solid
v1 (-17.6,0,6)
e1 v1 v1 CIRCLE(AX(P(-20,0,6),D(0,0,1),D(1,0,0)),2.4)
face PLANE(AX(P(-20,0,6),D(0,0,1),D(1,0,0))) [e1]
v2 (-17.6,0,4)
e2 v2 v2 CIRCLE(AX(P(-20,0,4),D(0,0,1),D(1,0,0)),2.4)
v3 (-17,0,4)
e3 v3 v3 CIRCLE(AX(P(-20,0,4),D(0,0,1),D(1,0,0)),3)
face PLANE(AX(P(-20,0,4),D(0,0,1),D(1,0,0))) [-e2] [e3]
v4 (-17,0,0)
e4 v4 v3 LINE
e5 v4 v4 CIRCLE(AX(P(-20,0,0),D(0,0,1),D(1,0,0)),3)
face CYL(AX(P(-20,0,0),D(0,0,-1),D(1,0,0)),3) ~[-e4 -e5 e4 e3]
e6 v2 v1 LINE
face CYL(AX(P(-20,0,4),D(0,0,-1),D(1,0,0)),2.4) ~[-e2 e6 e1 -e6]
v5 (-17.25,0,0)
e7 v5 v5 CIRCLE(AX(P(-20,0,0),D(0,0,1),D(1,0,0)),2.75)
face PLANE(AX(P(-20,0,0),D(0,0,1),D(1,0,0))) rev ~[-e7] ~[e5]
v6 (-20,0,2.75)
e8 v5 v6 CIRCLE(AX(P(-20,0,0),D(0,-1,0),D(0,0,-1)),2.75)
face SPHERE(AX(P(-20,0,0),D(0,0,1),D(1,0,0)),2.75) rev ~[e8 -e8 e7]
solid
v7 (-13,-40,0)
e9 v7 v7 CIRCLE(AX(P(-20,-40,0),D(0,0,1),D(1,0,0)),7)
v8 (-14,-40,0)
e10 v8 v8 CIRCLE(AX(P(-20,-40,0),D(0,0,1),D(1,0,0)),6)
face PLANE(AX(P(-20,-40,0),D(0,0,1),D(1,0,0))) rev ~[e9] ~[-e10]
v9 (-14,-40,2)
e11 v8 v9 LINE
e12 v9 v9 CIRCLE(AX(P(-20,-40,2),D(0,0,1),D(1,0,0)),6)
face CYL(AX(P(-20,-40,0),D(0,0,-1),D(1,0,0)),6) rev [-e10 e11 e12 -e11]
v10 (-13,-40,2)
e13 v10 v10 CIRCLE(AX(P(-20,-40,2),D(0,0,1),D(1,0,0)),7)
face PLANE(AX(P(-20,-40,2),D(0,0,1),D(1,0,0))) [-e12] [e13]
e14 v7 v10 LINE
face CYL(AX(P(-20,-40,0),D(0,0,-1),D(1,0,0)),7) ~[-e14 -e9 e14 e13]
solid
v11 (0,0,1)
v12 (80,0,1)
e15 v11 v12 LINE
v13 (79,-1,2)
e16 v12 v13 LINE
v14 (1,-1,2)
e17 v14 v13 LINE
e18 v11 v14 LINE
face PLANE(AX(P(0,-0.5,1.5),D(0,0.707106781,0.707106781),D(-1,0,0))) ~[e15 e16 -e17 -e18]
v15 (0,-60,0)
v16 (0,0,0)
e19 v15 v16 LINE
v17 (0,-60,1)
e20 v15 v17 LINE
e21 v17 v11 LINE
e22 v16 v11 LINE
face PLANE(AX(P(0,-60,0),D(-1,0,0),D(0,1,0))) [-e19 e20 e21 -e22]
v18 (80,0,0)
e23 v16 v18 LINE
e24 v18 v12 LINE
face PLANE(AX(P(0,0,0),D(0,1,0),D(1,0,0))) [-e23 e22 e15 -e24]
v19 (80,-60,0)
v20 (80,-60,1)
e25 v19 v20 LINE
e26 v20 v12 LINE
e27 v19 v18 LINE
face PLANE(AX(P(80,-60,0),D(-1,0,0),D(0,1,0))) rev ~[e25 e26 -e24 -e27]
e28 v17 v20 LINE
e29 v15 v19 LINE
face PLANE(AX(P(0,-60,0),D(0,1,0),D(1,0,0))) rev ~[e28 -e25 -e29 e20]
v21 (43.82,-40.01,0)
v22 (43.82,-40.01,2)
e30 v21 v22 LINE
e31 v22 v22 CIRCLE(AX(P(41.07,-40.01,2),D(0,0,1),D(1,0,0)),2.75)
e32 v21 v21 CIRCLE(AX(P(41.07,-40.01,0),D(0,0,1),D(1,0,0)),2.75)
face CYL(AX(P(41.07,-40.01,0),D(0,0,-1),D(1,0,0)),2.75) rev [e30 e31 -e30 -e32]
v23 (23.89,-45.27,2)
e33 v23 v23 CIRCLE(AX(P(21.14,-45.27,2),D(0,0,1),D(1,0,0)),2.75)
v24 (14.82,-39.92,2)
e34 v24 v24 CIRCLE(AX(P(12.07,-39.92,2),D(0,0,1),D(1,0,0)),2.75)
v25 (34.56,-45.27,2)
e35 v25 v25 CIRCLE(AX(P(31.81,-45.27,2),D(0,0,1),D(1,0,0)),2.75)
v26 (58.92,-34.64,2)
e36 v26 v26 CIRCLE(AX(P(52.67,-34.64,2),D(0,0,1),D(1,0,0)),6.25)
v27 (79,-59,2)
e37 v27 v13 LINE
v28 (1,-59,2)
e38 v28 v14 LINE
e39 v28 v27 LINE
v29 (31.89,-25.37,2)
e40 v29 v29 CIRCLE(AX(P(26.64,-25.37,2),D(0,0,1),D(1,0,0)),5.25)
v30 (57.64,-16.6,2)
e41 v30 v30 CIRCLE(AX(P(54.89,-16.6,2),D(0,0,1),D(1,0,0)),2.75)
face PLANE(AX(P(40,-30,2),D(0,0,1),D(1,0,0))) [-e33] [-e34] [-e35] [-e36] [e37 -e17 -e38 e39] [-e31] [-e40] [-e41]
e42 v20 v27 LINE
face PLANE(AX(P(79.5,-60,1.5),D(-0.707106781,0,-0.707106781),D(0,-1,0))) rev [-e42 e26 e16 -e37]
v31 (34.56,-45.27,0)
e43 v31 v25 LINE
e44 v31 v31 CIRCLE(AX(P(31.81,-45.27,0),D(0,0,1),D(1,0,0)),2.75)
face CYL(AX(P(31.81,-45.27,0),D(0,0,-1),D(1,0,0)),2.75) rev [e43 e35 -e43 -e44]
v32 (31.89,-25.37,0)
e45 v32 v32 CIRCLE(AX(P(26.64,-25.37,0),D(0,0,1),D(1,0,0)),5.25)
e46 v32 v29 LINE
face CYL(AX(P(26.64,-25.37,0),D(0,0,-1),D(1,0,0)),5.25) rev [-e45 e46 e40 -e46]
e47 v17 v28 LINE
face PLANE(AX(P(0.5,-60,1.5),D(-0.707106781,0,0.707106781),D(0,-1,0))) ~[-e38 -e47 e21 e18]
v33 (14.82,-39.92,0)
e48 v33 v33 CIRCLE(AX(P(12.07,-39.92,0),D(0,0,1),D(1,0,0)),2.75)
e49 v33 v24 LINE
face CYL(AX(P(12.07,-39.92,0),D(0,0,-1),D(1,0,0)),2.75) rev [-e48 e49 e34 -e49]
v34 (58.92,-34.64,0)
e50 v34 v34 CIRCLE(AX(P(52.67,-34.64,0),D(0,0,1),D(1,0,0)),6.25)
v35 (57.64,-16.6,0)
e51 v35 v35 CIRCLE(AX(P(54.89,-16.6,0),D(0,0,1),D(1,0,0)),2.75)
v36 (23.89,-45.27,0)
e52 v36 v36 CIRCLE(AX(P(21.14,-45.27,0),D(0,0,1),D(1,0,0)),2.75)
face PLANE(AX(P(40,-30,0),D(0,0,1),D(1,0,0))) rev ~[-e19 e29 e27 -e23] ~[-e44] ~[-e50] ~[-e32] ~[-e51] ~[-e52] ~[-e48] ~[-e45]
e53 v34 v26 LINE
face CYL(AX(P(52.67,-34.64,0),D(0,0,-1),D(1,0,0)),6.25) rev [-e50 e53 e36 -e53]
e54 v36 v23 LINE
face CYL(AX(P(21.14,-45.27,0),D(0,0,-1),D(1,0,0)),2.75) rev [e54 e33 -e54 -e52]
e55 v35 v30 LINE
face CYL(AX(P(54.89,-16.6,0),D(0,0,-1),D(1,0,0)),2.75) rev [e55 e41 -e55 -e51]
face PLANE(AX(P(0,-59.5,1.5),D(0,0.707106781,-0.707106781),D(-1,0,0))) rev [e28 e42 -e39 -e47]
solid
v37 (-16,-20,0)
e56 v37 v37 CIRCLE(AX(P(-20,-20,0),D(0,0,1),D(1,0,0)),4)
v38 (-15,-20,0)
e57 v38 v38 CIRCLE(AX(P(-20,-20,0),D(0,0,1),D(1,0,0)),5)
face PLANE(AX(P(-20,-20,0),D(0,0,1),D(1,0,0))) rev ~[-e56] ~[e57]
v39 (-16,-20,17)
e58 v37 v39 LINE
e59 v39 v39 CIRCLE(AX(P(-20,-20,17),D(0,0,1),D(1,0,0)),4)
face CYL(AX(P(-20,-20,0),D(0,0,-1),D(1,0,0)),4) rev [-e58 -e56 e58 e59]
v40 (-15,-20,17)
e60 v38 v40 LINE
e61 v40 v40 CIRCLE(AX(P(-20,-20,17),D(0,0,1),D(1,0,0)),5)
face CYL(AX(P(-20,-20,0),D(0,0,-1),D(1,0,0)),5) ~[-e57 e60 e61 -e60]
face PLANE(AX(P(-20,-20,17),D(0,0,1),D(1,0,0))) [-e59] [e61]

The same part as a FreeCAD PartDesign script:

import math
import FreeCAD as App
import Part
import Sketcher
Q = App.Units.Quantity


def edges_at(feature, points):
    """Names of the edges that pass closest to the given points."""
    edges = feature.Shape.Edges
    near = lambda p: min(range(len(edges)), key=lambda i: edges[i].distToShape(Part.Vertex(*p))[0])
    return sorted({f"Edge{near(p) + 1}" for p in points})

doc = App.newDocument("Part")
body = doc.addObject("PartDesign::Body", "Body")

sketch1 = body.newObject("Sketcher::SketchObject", "Sketch")
sketch1.AttachmentSupport = (doc.getObject("XY_Plane"), [""])
sketch1.MapMode = "FlatFace"
sketch1.addGeometry([
    Part.LineSegment(App.Vector(0, 0, 0), App.Vector(0, -60, 0)),
    Part.LineSegment(App.Vector(0, -60, 0), App.Vector(80, -60, 0)),
    Part.LineSegment(App.Vector(80, -60, 0), App.Vector(80, 0, 0)),
    Part.LineSegment(App.Vector(80, 0, 0), App.Vector(0, 0, 0)),
    Part.Circle(App.Vector(21.14, -45.27, 0), App.Vector(0, 0, 1), 2.75),
    Part.Circle(App.Vector(12.07, -39.92, 0), App.Vector(0, 0, 1), 2.75),
    Part.Circle(App.Vector(31.81, -45.27, 0), App.Vector(0, 0, 1), 2.75),
    Part.Circle(App.Vector(41.07, -40.01, 0), App.Vector(0, 0, 1), 2.75),
    Part.Circle(App.Vector(52.67, -34.64, 0), App.Vector(0, 0, 1), 6.25),
    Part.Circle(App.Vector(26.64, -25.37, 0), App.Vector(0, 0, 1), 5.25),
    Part.Circle(App.Vector(54.89, -16.6, 0), App.Vector(0, 0, 1), 2.75),
], False)
sketch1.addConstraint([
    Sketcher.Constraint("Coincident", 0, 2, 1, 1),
    Sketcher.Constraint("Coincident", 1, 2, 2, 1),
    Sketcher.Constraint("Coincident", 2, 2, 3, 1),
    Sketcher.Constraint("Coincident", 3, 2, 0, 1),
    Sketcher.Constraint("Vertical", 0),
    Sketcher.Constraint("Horizontal", 1),
    Sketcher.Constraint("Vertical", 2),
    Sketcher.Constraint("Horizontal", 3),
    Sketcher.Constraint("Coincident", 3, 2, -1, 1),
    Sketcher.Constraint("Equal", 4, 5),
    Sketcher.Constraint("Equal", 5, 6),
    Sketcher.Constraint("Equal", 6, 7),
    Sketcher.Constraint("Equal", 7, 10),
    Sketcher.Constraint("Horizontal", 4, 3, 6, 3),
    Sketcher.Constraint("Diameter", 4, Q("5.5 mm")),
    Sketcher.Constraint("Diameter", 8, Q("12.5 mm")),
    Sketcher.Constraint("Diameter", 9, Q("10.5 mm")),
    Sketcher.Constraint("DistanceX", 1, 1, 1, 2, Q("80 mm")),
    Sketcher.Constraint("DistanceY", 0, 2, 0, 1, Q("60 mm")),
    Sketcher.Constraint("DistanceX", 5, 3, 7, 3, Q("29 mm")),
    Sketcher.Constraint("DistanceY", 10, 3, -1, 1, Q("16.6 mm")),
    Sketcher.Constraint("DistanceX", 7, 3, 8, 3, Q("11.6 mm")),
    Sketcher.Constraint("DistanceY", 6, 3, 9, 3, Q("19.9 mm")),
    Sketcher.Constraint("DistanceX", 4, 3, 9, 3, Q("5.5 mm")),
    Sketcher.Constraint("DistanceX", -1, 1, 4, 3, Q("21.14 mm")),
    Sketcher.Constraint("DistanceY", 4, 3, -1, 1, Q("45.27 mm")),
    Sketcher.Constraint("DistanceX", -1, 1, 5, 3, Q("12.07 mm")),
    Sketcher.Constraint("DistanceY", 5, 3, -1, 1, Q("39.92 mm")),
    Sketcher.Constraint("DistanceX", -1, 1, 6, 3, Q("31.81 mm")),
    Sketcher.Constraint("DistanceY", 7, 3, -1, 1, Q("40.01 mm")),
    Sketcher.Constraint("DistanceY", 8, 3, -1, 1, Q("34.64 mm")),
    Sketcher.Constraint("DistanceX", -1, 1, 10, 3, Q("54.89 mm")),
])
pad1 = body.newObject("PartDesign::Pad", "Pad")
pad1.Profile = sketch1
pad1.Length = 2
doc.recompute()

chamfer = body.newObject("PartDesign::Chamfer", "Chamfer")
chamfer.Base = (pad1, edges_at(pad1, [
    (40, 0, 2),
    (80, -30, 2),
    (40, -60, 2),
    (0, -30, 2),
]))
chamfer.Size = 1
body2 = doc.addObject("PartDesign::Body", "Body001")

sketch2 = body2.newObject("Sketcher::SketchObject", "Sketch001")
sketch2.AttachmentSupport = (doc.getObject("XY_Plane001"), [""])
sketch2.MapMode = "FlatFace"
sketch2.AttachmentOffset = App.Placement(App.Vector(0, 0, 4), App.Rotation())
sketch2.addGeometry(Part.Circle(App.Vector(-20, 0, 0), App.Vector(0, 0, 1), 2.4), False)
sketch2.addConstraint([
    Sketcher.Constraint("PointOnObject", 0, 3, -1),
    Sketcher.Constraint("Diameter", 0, Q("4.8 mm")),
    Sketcher.Constraint("DistanceX", 0, 3, -1, 1, Q("20 mm")),
])
pad2 = body2.newObject("PartDesign::Pad", "Pad001")
pad2.Profile = sketch2
pad2.Length = 2
body3 = doc.addObject("PartDesign::Body", "Body002")

sketch3 = body3.newObject("Sketcher::SketchObject", "Sketch002")
sketch3.AttachmentSupport = (doc.getObject("XZ_Plane002"), [""])
sketch3.MapMode = "FlatFace"
sketch3.addGeometry([
    Part.ArcOfCircle(Part.Circle(App.Vector(-20, 0, 0), App.Vector(0, 0, 1), 2.75), math.radians(-90), math.radians(90)),
    Part.LineSegment(App.Vector(-20, 2.75, 0), App.Vector(-20, -2.75, 0)),
], False)
sketch3.addGeometry(Part.LineSegment(App.Vector(-20, -2.75, 0), App.Vector(-20, 2.75, 0)), True)
sketch3.addConstraint([
    Sketcher.Constraint("Coincident", 0, 1, 1, 2),
    Sketcher.Constraint("Coincident", 1, 1, 0, 2),
    Sketcher.Constraint("Vertical", 1),
    Sketcher.Constraint("Vertical", 2),
    Sketcher.Constraint("Coincident", 2, 1, 0, 1),
    Sketcher.Constraint("PointOnObject", 0, 3, -1),
    Sketcher.Constraint("Equal", 1, 2),
    Sketcher.Constraint("Radius", 0, Q("2.75 mm")),
    Sketcher.Constraint("DistanceX", 0, 3, -1, 1, Q("20 mm")),
    Sketcher.Constraint("DistanceX", 0, 1, -1, 1, Q("20 mm")),
])
revolution = body3.newObject("PartDesign::Revolution", "Revolution")
revolution.Profile = sketch3
revolution.ReferenceAxis = (sketch3, ["Axis0"])
revolution.Angle = 360
body4 = doc.addObject("PartDesign::Body", "Body003")

sketch4 = body4.newObject("Sketcher::SketchObject", "Sketch003")
sketch4.AttachmentSupport = (doc.getObject("XY_Plane003"), [""])
sketch4.MapMode = "FlatFace"
sketch4.addGeometry(Part.Circle(App.Vector(-20, 0, 0), App.Vector(0, 0, 1), 3), False)
sketch4.addConstraint([
    Sketcher.Constraint("PointOnObject", 0, 3, -1),
    Sketcher.Constraint("Diameter", 0, Q("6 mm")),
    Sketcher.Constraint("DistanceX", 0, 3, -1, 1, Q("20 mm")),
])
pad3 = body4.newObject("PartDesign::Pad", "Pad002")
pad3.Profile = sketch4
pad3.Length = 4
doc.recompute()

boolean = body4.newObject("PartDesign::Boolean", "Boolean")
boolean.Type = "Cut"
boolean.addObjects([body3])
doc.recompute()

boolean2 = body4.newObject("PartDesign::Boolean", "Boolean001")
boolean2.Type = "Fuse"
boolean2.addObjects([body2])
body5 = doc.addObject("PartDesign::Body", "Body004")

sketch5 = body5.newObject("Sketcher::SketchObject", "Sketch004")
sketch5.AttachmentSupport = (doc.getObject("XY_Plane004"), [""])
sketch5.MapMode = "FlatFace"
sketch5.addGeometry([
    Part.Circle(App.Vector(-20, -20, 0), App.Vector(0, 0, 1), 5),
    Part.Circle(App.Vector(-20, -20, 0), App.Vector(0, 0, 1), 4),
], False)
sketch5.addConstraint([
    Sketcher.Constraint("Coincident", 1, 3, 0, 3),
    Sketcher.Constraint("Diameter", 0, Q("10 mm")),
    Sketcher.Constraint("Diameter", 1, Q("8 mm")),
    Sketcher.Constraint("DistanceX", 0, 3, -1, 1, Q("20 mm")),
    Sketcher.Constraint("DistanceY", 0, 3, -1, 1, Q("20 mm")),
])
pad4 = body5.newObject("PartDesign::Pad", "Pad003")
pad4.Profile = sketch5
pad4.Length = 17
body6 = doc.addObject("PartDesign::Body", "Body005")

sketch6 = body6.newObject("Sketcher::SketchObject", "Sketch005")
sketch6.AttachmentSupport = (doc.getObject("XY_Plane005"), [""])
sketch6.MapMode = "FlatFace"
sketch6.addGeometry([
    Part.Circle(App.Vector(-20, -40, 0), App.Vector(0, 0, 1), 7),
    Part.Circle(App.Vector(-20, -40, 0), App.Vector(0, 0, 1), 6),
], False)
sketch6.addConstraint([
    Sketcher.Constraint("Coincident", 1, 3, 0, 3),
    Sketcher.Constraint("Diameter", 0, Q("14 mm")),
    Sketcher.Constraint("Diameter", 1, Q("12 mm")),
    Sketcher.Constraint("DistanceX", 0, 3, -1, 1, Q("20 mm")),
    Sketcher.Constraint("DistanceY", 0, 3, -1, 1, Q("40 mm")),
])
pad5 = body6.newObject("PartDesign::Pad", "Pad004")
pad5.Profile = sketch6
pad5.Length = 2

doc.recompute()
